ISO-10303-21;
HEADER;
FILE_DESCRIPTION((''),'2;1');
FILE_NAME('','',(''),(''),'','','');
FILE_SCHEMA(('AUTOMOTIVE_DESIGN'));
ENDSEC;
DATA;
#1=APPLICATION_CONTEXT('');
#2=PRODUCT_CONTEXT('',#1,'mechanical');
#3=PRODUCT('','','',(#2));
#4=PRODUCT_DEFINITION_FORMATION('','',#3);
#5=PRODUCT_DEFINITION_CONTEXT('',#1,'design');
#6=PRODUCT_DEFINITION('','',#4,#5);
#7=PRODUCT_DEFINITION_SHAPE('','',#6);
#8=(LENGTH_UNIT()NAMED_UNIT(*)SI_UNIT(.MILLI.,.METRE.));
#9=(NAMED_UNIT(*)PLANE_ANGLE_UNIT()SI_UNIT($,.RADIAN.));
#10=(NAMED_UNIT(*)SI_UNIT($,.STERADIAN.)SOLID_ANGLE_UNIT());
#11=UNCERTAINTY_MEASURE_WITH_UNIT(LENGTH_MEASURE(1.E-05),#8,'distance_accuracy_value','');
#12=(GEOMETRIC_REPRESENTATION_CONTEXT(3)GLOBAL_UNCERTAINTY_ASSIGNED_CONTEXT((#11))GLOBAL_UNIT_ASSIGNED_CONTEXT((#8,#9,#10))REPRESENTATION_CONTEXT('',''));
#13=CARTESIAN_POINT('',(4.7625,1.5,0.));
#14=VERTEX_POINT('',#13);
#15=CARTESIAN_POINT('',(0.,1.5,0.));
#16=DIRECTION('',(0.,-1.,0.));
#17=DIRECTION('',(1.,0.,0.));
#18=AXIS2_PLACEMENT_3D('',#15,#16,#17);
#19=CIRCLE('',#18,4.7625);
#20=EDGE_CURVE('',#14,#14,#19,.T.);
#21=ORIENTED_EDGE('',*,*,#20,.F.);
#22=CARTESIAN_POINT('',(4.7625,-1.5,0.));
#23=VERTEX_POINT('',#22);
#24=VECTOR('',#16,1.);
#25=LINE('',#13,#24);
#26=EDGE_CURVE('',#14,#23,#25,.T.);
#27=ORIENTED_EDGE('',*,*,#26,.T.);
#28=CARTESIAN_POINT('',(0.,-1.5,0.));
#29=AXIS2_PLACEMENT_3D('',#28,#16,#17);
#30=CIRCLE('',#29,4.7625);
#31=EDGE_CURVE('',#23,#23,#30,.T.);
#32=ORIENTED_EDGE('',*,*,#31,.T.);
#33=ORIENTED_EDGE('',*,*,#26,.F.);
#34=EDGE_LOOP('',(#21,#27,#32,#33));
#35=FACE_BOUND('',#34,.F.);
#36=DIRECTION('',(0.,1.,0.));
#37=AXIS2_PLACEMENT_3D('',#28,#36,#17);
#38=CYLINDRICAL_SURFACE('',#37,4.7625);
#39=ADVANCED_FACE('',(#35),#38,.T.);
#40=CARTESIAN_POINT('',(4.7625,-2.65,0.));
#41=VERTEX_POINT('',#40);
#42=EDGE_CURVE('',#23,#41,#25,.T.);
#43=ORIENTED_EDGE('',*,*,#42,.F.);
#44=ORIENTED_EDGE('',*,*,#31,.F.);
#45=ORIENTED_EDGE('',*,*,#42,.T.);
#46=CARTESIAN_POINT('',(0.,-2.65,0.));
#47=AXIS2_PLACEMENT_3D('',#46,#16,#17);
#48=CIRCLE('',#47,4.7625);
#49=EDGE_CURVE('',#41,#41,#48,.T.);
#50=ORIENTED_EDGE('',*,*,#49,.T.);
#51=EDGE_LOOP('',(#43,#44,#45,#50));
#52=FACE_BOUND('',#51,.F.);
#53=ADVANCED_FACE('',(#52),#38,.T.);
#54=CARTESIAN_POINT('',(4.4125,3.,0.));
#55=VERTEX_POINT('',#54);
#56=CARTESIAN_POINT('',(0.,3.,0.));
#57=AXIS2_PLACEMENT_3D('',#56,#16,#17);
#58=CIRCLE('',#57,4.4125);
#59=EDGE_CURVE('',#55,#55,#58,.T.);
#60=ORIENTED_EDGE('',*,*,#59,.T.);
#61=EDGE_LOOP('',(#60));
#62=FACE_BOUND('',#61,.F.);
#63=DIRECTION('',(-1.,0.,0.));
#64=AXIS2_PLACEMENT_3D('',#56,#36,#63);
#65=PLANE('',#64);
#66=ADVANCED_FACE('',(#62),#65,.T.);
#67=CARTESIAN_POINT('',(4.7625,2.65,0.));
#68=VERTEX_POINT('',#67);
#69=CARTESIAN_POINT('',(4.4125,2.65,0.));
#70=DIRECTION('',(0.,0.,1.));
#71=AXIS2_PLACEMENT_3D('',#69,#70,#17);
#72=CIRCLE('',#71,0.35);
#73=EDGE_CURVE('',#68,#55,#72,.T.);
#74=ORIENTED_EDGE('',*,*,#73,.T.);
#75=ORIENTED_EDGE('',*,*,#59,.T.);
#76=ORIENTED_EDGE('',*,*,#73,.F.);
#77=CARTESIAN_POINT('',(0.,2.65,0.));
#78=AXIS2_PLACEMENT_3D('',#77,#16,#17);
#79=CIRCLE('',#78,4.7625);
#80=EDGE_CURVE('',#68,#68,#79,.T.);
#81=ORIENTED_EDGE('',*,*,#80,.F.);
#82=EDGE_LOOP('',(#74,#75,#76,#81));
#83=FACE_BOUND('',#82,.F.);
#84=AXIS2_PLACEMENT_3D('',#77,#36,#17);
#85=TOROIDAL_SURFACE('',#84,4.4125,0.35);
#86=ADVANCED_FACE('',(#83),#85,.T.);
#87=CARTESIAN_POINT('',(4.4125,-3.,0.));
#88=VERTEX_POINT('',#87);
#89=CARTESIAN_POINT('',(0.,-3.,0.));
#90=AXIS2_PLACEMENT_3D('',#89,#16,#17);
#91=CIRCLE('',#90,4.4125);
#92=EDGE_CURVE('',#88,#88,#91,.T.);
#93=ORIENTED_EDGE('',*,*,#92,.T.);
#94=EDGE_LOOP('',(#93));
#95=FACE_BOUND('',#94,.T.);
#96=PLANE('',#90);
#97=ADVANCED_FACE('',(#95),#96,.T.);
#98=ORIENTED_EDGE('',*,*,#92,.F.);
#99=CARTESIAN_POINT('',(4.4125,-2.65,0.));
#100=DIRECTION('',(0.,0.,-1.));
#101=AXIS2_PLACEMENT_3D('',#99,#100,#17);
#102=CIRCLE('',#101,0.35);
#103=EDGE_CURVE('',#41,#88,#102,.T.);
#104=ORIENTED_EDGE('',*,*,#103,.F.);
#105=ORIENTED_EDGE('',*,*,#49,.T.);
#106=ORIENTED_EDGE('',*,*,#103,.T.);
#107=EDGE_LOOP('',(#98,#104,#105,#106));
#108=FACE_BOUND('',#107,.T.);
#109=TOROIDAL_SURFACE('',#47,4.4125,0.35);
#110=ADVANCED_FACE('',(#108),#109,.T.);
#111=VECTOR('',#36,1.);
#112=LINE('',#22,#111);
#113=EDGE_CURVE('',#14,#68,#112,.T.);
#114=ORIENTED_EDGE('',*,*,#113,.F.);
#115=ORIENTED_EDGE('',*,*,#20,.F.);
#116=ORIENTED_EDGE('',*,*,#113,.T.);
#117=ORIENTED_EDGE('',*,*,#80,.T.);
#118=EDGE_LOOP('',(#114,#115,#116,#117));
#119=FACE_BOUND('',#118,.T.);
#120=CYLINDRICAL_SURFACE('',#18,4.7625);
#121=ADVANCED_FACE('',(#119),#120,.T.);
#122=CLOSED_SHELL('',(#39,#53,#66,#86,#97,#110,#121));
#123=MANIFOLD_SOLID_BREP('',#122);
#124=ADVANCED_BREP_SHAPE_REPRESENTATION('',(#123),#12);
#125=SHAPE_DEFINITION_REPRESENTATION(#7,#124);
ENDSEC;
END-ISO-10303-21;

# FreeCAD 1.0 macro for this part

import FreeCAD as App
import Part
import Sketcher

V = App.Vector
Q = App.Units.Quantity


def edges_at(feature, points):
    """Names of the edges that pass closest to the given points."""
    edges = feature.Shape.Edges
    near = lambda p: min(range(len(edges)), key=lambda i: edges[i].distToShape(Part.Vertex(*p))[0])
    return sorted({f"Edge{near(p) + 1}" for p in points})

doc = App.newDocument("Part")
body = doc.addObject("PartDesign::Body", "Body")

# Sketch on XZ plane
sketch1 = body.newObject("Sketcher::SketchObject", "Sketch")
sketch1.AttachmentSupport = (doc.getObject("XZ_Plane"), [""])
sketch1.MapMode = "FlatFace"
sketch1.addGeometry(Part.Circle(V(0, 0, 0), V(0, 0, 1), 4.8), False)
sketch1.addConstraint([
    Sketcher.Constraint("Coincident", 0, 3, -1, 1),
    Sketcher.Constraint("Diameter", 0, Q("9.525 mm")),
])
pad1 = body.newObject("PartDesign::Pad", "Pad")
pad1.Profile = sketch1
pad1.Length = 3
pad1.Midplane = True

# Sketch on XZ plane
sketch2 = body.newObject("Sketcher::SketchObject", "Sketch001")
sketch2.AttachmentSupport = (doc.getObject("XZ_Plane"), [""])
sketch2.MapMode = "FlatFace"
sketch2.AttachmentOffset = App.Placement(V(0, 0, 1.5), App.Rotation())
sketch2.addGeometry(Part.Circle(V(0, 0, 0), V(0, 0, 1), 4.8), False)
sketch2.addConstraint([
    Sketcher.Constraint("Coincident", 0, 3, -1, 1),
    Sketcher.Constraint("Diameter", 0, Q("9.525 mm")),
])
pad2 = body.newObject("PartDesign::Pad", "Pad001")
pad2.Profile = sketch2
pad2.Length = 1.5
doc.recompute()

fillet = body.newObject("PartDesign::Fillet", "Fillet")
fillet.Base = (pad2, edges_at(pad2, [(-4.763, -3, 0)]))
fillet.Radius = 0.35
body2 = doc.addObject("PartDesign::Body", "Body001")
doc.recompute()

body2.BaseFeature = body
doc.recompute()

mirroring = doc.addObject("Part::Mirroring", "Mirroring")
mirroring.Source = body
mirroring.Base = V(0, 0, 0)
mirroring.Normal = V(0, -1, 0)
body3 = doc.addObject("PartDesign::Body", "Body002")
body3.BaseFeature = mirroring
boolean = body2.newObject("PartDesign::Boolean", "Boolean")
boolean.Type = "Fuse"
boolean.addObjects([body3])
doc.recompute()
mirroring.Visibility = False

doc.recompute()
